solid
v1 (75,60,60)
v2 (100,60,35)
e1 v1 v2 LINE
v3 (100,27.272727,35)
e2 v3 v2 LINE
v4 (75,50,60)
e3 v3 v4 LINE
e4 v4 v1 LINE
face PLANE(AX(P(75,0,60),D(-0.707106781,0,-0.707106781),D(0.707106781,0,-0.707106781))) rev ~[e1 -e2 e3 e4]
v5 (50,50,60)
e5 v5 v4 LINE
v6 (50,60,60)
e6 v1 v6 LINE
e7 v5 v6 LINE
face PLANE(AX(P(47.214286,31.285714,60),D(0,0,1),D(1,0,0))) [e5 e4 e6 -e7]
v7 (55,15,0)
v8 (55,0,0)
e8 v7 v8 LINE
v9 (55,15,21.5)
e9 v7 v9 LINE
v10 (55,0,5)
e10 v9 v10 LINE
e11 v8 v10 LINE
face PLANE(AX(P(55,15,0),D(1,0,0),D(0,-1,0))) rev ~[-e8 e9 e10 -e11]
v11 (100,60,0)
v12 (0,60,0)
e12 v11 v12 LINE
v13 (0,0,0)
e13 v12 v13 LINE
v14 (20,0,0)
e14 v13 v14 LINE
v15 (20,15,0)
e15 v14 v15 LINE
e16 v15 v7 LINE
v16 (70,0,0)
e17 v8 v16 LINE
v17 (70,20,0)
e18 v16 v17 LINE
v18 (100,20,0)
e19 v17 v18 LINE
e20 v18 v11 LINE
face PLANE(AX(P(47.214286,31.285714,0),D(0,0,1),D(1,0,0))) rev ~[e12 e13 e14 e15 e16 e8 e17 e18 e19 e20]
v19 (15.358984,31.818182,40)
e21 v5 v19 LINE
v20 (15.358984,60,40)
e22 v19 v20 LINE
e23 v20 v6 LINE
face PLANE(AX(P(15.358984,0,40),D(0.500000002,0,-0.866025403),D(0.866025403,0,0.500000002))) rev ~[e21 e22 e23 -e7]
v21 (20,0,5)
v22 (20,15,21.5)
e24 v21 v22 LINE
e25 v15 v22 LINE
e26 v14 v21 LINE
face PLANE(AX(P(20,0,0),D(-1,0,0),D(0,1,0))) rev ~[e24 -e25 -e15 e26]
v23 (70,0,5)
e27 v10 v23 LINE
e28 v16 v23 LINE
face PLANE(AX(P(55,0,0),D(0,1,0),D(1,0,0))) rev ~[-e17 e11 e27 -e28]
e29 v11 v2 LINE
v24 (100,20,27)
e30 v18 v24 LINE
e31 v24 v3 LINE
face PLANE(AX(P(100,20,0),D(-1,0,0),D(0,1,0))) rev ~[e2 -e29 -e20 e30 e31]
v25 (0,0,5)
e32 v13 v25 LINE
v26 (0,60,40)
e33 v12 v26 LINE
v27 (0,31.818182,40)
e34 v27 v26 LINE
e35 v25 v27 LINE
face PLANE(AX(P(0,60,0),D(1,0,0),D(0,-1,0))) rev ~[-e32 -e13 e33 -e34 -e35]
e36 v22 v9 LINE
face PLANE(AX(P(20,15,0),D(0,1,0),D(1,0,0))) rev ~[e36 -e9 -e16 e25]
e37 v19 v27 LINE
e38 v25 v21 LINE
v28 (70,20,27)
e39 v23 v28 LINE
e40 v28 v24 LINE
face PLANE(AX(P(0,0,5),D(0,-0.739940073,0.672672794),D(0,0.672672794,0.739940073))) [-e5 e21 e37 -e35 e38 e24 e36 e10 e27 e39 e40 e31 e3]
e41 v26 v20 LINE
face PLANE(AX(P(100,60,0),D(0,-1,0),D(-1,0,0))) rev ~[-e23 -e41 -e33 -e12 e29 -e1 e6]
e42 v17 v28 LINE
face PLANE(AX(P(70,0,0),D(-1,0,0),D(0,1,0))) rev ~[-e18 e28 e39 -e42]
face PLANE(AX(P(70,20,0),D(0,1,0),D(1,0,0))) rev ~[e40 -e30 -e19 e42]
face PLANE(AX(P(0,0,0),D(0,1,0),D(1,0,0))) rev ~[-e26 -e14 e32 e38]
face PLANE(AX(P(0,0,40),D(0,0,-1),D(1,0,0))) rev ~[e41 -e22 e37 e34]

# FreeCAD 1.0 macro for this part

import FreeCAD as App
import Part
import Sketcher

V = App.Vector
Q = App.Units.Quantity

doc = App.newDocument("Part")
body = doc.addObject("PartDesign::Body", "Body")

# Sketch on XY plane
sketch1 = doc.addObject("Sketcher::SketchObject", "Sketch")
body.addObject(sketch1)
sketch1.AttachmentSupport = (doc.XY_Plane, [""])
sketch1.MapMode = "FlatFace"
sketch1.addGeometry([
    Part.LineSegment(V(0, 60, 0), V(0, 0, 0)),  # 0
    Part.LineSegment(V(0, 0, 0), V(20, 0, 0)),  # 1
    Part.LineSegment(V(20, 0, 0), V(20, 15, 0)),  # 2
    Part.LineSegment(V(20, 15, 0), V(55, 15, 0)),  # 3
    Part.LineSegment(V(55, 15, 0), V(55, 0, 0)),  # 4
    Part.LineSegment(V(55, 0, 0), V(70, 0, 0)),  # 5
    Part.LineSegment(V(70, 0, 0), V(70, 20, 0)),  # 6
    Part.LineSegment(V(70, 20, 0), V(100, 20, 0)),  # 7
    Part.LineSegment(V(100, 20, 0), V(100, 60, 0)),  # 8
    Part.LineSegment(V(100, 60, 0), V(0, 60, 0)),  # 9
], False)
sketch1.addConstraint([
    Sketcher.Constraint("Coincident", 0, 2, 1, 1),
    Sketcher.Constraint("Coincident", 1, 2, 2, 1),
    Sketcher.Constraint("Coincident", 2, 2, 3, 1),
    Sketcher.Constraint("Coincident", 3, 2, 4, 1),
    Sketcher.Constraint("Coincident", 4, 2, 5, 1),
    Sketcher.Constraint("Coincident", 5, 2, 6, 1),
    Sketcher.Constraint("Coincident", 6, 2, 7, 1),
    Sketcher.Constraint("Coincident", 7, 2, 8, 1),
    Sketcher.Constraint("Coincident", 8, 2, 9, 1),
    Sketcher.Constraint("Coincident", 9, 2, 0, 1),
    Sketcher.Constraint("Vertical", 0),
    Sketcher.Constraint("Horizontal", 1),
    Sketcher.Constraint("Vertical", 2),
    Sketcher.Constraint("Horizontal", 3),
    Sketcher.Constraint("Vertical", 4),
    Sketcher.Constraint("Horizontal", 5),
    Sketcher.Constraint("Vertical", 6),
    Sketcher.Constraint("Horizontal", 7),
    Sketcher.Constraint("Vertical", 8),
    Sketcher.Constraint("Horizontal", 9),
    Sketcher.Constraint("Coincident", 0, 2, -1, 1),
    Sketcher.Constraint("PointOnObject", 4, 2, -1),
    Sketcher.Constraint("Equal", 5, 2),
    Sketcher.Constraint("Equal", 1, 6),
    Sketcher.Constraint("DistanceX", 1, 1, 1, 2, 20.0),
    Sketcher.Constraint("DistanceX", 3, 1, 3, 2, 35.0),
    Sketcher.Constraint("DistanceX", 5, 1, 5, 2, 15.0),
    Sketcher.Constraint("DistanceX", 7, 1, 7, 2, 30.0),
    Sketcher.Constraint("DistanceY", 0, 2, 0, 1, 60.0),
])
pad1 = doc.addObject("PartDesign::Pad", "Pad")
body.addObject(pad1)
pad1.Profile = sketch1
pad1.Length = 60

# Sketch on XZ plane
sketch2 = doc.addObject("Sketcher::SketchObject", "Sketch001")
body.addObject(sketch2)
sketch2.AttachmentSupport = (doc.XZ_Plane, [""])
sketch2.MapMode = "FlatFace"
sketch2.addGeometry([
    Part.LineSegment(V(15.358984, 40, 0), V(50, 60, 0)),  # 0
    Part.LineSegment(V(50, 60, 0), V(0, 60, 0)),  # 1
    Part.LineSegment(V(0, 60, 0), V(0, 40, 0)),  # 2
    Part.LineSegment(V(0, 40, 0), V(15.358984, 40, 0)),  # 3
    Part.LineSegment(V(100, 60, 0), V(75, 60, 0)),  # 4
    Part.LineSegment(V(75, 60, 0), V(100, 35, 0)),  # 5
    Part.LineSegment(V(100, 35, 0), V(100, 60, 0)),  # 6
], False)
sketch2.addConstraint([
    Sketcher.Constraint("Coincident", 0, 2, 1, 1),
    Sketcher.Constraint("Coincident", 1, 2, 2, 1),
    Sketcher.Constraint("Coincident", 2, 2, 3, 1),
    Sketcher.Constraint("Coincident", 3, 2, 0, 1),
    Sketcher.Constraint("Coincident", 4, 2, 5, 1),
    Sketcher.Constraint("Coincident", 5, 2, 6, 1),
    Sketcher.Constraint("Coincident", 6, 2, 4, 1),
    Sketcher.Constraint("Horizontal", 1),
    Sketcher.Constraint("Vertical", 2),
    Sketcher.Constraint("Horizontal", 3),
    Sketcher.Constraint("Horizontal", 4),
    Sketcher.Constraint("Vertical", 6),
    Sketcher.Constraint("PointOnObject", 1, 2, -2),
    Sketcher.Constraint("Horizontal", 1, 2, 4, 2),
    Sketcher.Constraint("Equal", 4, 6),
    Sketcher.Constraint("DistanceX", 1, 2, 1, 1, 50.0),
    Sketcher.Constraint("DistanceX", 4, 2, 4, 1, 25.0),
    Sketcher.Constraint("DistanceY", 2, 2, 2, 1, 20.0),
    Sketcher.Constraint("Angle", 0, Q("30 deg")),
    Sketcher.Constraint("DistanceY", -1, 1, 0, 2, 60.0),
    Sketcher.Constraint("DistanceX", -1, 1, 4, 2, 75.0),
])
pocket1 = doc.addObject("PartDesign::Pocket", "Pocket")
body.addObject(pocket1)
pocket1.Profile = sketch2
pocket1.Type = "ThroughAll"

# Sketch on YZ plane
sketch3 = doc.addObject("Sketcher::SketchObject", "Sketch002")
body.addObject(sketch3)
sketch3.AttachmentSupport = (doc.YZ_Plane, [""])
sketch3.MapMode = "FlatFace"
sketch3.addGeometry([
    Part.LineSegment(V(0, 5, 0), V(50, 60, 0)),
    Part.LineSegment(V(50, 60, 0), V(0, 60, 0)),
    Part.LineSegment(V(0, 60, 0), V(0, 5, 0)),
], False)
sketch3.addConstraint([
    Sketcher.Constraint("Coincident", 0, 2, 1, 1),
    Sketcher.Constraint("Coincident", 1, 2, 2, 1),
    Sketcher.Constraint("Coincident", 2, 2, 0, 1),
    Sketcher.Constraint("Horizontal", 1),
    Sketcher.Constraint("Vertical", 2),
    Sketcher.Constraint("PointOnObject", 1, 2, -2),
    Sketcher.Constraint("DistanceX", 1, 2, 1, 1, 50.0),
    Sketcher.Constraint("DistanceY", 2, 2, 2, 1, 55.0),
    Sketcher.Constraint("DistanceY", -1, 1, 0, 2, 60.0),
])
pocket2 = doc.addObject("PartDesign::Pocket", "Pocket001")
body.addObject(pocket2)
pocket2.Profile = sketch3
pocket2.Type = "ThroughAll"
pocket2.Reversed = True

doc.recompute()
